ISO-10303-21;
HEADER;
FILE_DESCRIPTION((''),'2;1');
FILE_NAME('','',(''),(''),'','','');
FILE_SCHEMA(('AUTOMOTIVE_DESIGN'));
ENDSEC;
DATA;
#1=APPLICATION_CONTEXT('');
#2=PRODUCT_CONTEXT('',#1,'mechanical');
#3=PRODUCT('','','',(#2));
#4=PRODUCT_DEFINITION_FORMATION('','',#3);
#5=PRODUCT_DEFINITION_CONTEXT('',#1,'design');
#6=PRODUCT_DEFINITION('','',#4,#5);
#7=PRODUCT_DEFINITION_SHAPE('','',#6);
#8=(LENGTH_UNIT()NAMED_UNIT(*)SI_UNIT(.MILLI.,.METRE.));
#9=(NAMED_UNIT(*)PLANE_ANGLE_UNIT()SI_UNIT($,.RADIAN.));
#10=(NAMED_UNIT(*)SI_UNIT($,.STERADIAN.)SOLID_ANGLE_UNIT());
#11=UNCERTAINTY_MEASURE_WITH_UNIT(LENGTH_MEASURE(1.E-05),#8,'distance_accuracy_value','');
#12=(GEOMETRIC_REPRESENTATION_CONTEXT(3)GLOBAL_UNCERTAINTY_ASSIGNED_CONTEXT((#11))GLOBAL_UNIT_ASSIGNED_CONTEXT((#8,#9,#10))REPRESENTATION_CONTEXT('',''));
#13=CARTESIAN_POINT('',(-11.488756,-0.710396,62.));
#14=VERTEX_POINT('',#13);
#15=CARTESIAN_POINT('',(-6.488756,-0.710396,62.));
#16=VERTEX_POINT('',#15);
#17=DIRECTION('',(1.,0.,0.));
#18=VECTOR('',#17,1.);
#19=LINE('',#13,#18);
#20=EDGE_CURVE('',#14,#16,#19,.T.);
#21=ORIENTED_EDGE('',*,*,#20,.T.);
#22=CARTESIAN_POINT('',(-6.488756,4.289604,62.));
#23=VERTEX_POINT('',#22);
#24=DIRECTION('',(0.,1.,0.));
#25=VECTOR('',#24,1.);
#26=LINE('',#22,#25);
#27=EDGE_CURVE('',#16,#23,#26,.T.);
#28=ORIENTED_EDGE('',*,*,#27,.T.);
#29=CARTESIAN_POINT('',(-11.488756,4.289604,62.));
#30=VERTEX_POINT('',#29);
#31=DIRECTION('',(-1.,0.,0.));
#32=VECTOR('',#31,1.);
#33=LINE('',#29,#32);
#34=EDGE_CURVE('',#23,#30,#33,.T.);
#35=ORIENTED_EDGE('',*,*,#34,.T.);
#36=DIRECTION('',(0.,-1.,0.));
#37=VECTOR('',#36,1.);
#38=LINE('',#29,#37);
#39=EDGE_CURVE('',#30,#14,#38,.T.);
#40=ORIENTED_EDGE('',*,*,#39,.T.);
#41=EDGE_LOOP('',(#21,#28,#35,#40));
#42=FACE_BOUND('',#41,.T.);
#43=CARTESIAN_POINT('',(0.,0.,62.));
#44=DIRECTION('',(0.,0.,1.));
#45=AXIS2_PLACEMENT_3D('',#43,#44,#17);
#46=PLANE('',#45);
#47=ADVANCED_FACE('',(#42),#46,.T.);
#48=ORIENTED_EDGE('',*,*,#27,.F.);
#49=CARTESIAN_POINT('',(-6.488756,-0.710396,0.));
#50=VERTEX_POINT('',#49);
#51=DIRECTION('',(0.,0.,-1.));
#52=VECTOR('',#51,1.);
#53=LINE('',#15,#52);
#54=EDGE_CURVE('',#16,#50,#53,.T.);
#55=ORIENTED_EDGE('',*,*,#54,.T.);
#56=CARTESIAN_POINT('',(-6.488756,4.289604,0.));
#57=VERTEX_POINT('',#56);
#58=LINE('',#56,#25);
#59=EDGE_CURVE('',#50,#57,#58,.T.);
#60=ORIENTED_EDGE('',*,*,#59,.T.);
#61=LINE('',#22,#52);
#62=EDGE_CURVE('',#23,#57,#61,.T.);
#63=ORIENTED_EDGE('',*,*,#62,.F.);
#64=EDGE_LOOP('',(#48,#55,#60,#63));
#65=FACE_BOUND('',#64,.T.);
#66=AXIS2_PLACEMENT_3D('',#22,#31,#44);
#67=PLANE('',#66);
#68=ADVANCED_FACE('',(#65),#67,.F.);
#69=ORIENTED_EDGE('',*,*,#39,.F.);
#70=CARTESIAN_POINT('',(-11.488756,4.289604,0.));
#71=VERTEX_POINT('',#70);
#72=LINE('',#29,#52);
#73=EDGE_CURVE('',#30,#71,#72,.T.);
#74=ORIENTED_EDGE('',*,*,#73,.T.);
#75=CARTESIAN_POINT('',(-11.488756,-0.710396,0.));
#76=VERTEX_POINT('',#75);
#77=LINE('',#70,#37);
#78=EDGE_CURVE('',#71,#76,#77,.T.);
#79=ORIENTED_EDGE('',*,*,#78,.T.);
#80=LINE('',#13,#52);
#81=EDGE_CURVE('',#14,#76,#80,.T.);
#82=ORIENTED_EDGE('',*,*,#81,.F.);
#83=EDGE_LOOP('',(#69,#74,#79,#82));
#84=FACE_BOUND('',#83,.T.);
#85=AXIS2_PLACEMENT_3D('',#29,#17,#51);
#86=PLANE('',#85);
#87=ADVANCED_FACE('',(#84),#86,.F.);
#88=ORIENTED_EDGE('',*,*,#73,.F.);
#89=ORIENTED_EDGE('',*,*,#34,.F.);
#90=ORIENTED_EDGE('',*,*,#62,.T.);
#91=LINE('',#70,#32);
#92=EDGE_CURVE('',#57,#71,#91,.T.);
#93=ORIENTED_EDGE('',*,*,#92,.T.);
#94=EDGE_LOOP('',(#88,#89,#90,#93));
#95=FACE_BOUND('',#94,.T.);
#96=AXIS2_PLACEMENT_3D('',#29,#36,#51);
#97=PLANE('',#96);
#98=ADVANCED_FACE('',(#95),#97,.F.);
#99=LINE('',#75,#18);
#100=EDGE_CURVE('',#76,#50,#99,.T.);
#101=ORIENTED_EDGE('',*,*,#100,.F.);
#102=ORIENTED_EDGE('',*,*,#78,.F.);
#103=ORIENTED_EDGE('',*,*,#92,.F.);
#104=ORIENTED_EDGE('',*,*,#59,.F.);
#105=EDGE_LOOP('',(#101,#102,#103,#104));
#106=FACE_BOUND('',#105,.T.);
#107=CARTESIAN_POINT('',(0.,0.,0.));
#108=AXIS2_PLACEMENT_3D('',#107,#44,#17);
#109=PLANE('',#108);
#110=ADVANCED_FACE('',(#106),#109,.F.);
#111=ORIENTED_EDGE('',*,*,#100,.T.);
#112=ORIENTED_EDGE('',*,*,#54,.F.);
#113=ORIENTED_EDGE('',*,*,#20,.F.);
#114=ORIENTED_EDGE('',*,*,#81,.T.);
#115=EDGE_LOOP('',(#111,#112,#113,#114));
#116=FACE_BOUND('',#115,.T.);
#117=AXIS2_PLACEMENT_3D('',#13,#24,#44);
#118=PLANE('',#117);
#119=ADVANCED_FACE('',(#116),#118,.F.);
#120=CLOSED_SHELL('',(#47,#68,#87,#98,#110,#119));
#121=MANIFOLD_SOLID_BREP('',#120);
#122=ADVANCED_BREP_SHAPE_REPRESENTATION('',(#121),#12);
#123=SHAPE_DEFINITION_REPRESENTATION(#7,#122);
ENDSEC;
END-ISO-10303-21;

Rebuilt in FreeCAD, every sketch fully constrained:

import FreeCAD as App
import Part
import Sketcher
Q = App.Units.Quantity


def add_polygon(sketch, points):
    """Adds a closed chain of lines whose ends are joined by coincident constraints."""
    first, n = sketch.GeometryCount, len(points)
    for a, b in zip(points, points[1:] + points[:1]):
        sketch.addGeometry(Part.LineSegment(App.Vector(*a, 0), App.Vector(*b, 0)), False)
    for i in range(n):
        sketch.addConstraint(Sketcher.Constraint("Coincident", first + i, 2, first + (i + 1) % n, 1))

doc = App.newDocument("Part")
params = doc.addObject("Spreadsheet::Sheet", "Params")
for row, (alias, value) in enumerate([
    ("sketch1_width", "5 mm"),
    ("pad1_length", "62 mm"),
], start=1):
    params.set(f"A{row}", alias)
    params.set(f"B{row}", "=" + value)
    params.setAlias(f"B{row}", alias)

body = doc.addObject("PartDesign::Body", "Body")

sketch1 = body.newObject("Sketcher::SketchObject", "Sketch")
sketch1.AttachmentSupport = (doc.getObject("XY_Plane"), [""])
sketch1.MapMode = "FlatFace"
add_polygon(sketch1, [(-11.488756, 4.289604), (-11.488756, -0.710396), (-6.488756, -0.710396), (-6.488756, 4.289604)])
sketch1.addConstraint([
    Sketcher.Constraint("Vertical", 0),
    Sketcher.Constraint("Horizontal", 1),
    Sketcher.Constraint("Vertical", 2),
    Sketcher.Constraint("Horizontal", 3),
    Sketcher.Constraint("Equal", 3, 0),
    Sketcher.Constraint("DistanceX", 1, 1, 1, 2, Q("5 mm")),
    Sketcher.Constraint("DistanceX", 0, 2, -1, 1, Q("11.488756 mm")),
    Sketcher.Constraint("DistanceY", 0, 2, -1, 1, Q("0.710396 mm")),
])
sketch1.setExpression("Constraints[9]", "Params.sketch1_width")
pad1 = body.newObject("PartDesign::Pad", "Pad")
pad1.Profile = sketch1
pad1.setExpression("Length", "Params.pad1_length")

doc.recompute()
